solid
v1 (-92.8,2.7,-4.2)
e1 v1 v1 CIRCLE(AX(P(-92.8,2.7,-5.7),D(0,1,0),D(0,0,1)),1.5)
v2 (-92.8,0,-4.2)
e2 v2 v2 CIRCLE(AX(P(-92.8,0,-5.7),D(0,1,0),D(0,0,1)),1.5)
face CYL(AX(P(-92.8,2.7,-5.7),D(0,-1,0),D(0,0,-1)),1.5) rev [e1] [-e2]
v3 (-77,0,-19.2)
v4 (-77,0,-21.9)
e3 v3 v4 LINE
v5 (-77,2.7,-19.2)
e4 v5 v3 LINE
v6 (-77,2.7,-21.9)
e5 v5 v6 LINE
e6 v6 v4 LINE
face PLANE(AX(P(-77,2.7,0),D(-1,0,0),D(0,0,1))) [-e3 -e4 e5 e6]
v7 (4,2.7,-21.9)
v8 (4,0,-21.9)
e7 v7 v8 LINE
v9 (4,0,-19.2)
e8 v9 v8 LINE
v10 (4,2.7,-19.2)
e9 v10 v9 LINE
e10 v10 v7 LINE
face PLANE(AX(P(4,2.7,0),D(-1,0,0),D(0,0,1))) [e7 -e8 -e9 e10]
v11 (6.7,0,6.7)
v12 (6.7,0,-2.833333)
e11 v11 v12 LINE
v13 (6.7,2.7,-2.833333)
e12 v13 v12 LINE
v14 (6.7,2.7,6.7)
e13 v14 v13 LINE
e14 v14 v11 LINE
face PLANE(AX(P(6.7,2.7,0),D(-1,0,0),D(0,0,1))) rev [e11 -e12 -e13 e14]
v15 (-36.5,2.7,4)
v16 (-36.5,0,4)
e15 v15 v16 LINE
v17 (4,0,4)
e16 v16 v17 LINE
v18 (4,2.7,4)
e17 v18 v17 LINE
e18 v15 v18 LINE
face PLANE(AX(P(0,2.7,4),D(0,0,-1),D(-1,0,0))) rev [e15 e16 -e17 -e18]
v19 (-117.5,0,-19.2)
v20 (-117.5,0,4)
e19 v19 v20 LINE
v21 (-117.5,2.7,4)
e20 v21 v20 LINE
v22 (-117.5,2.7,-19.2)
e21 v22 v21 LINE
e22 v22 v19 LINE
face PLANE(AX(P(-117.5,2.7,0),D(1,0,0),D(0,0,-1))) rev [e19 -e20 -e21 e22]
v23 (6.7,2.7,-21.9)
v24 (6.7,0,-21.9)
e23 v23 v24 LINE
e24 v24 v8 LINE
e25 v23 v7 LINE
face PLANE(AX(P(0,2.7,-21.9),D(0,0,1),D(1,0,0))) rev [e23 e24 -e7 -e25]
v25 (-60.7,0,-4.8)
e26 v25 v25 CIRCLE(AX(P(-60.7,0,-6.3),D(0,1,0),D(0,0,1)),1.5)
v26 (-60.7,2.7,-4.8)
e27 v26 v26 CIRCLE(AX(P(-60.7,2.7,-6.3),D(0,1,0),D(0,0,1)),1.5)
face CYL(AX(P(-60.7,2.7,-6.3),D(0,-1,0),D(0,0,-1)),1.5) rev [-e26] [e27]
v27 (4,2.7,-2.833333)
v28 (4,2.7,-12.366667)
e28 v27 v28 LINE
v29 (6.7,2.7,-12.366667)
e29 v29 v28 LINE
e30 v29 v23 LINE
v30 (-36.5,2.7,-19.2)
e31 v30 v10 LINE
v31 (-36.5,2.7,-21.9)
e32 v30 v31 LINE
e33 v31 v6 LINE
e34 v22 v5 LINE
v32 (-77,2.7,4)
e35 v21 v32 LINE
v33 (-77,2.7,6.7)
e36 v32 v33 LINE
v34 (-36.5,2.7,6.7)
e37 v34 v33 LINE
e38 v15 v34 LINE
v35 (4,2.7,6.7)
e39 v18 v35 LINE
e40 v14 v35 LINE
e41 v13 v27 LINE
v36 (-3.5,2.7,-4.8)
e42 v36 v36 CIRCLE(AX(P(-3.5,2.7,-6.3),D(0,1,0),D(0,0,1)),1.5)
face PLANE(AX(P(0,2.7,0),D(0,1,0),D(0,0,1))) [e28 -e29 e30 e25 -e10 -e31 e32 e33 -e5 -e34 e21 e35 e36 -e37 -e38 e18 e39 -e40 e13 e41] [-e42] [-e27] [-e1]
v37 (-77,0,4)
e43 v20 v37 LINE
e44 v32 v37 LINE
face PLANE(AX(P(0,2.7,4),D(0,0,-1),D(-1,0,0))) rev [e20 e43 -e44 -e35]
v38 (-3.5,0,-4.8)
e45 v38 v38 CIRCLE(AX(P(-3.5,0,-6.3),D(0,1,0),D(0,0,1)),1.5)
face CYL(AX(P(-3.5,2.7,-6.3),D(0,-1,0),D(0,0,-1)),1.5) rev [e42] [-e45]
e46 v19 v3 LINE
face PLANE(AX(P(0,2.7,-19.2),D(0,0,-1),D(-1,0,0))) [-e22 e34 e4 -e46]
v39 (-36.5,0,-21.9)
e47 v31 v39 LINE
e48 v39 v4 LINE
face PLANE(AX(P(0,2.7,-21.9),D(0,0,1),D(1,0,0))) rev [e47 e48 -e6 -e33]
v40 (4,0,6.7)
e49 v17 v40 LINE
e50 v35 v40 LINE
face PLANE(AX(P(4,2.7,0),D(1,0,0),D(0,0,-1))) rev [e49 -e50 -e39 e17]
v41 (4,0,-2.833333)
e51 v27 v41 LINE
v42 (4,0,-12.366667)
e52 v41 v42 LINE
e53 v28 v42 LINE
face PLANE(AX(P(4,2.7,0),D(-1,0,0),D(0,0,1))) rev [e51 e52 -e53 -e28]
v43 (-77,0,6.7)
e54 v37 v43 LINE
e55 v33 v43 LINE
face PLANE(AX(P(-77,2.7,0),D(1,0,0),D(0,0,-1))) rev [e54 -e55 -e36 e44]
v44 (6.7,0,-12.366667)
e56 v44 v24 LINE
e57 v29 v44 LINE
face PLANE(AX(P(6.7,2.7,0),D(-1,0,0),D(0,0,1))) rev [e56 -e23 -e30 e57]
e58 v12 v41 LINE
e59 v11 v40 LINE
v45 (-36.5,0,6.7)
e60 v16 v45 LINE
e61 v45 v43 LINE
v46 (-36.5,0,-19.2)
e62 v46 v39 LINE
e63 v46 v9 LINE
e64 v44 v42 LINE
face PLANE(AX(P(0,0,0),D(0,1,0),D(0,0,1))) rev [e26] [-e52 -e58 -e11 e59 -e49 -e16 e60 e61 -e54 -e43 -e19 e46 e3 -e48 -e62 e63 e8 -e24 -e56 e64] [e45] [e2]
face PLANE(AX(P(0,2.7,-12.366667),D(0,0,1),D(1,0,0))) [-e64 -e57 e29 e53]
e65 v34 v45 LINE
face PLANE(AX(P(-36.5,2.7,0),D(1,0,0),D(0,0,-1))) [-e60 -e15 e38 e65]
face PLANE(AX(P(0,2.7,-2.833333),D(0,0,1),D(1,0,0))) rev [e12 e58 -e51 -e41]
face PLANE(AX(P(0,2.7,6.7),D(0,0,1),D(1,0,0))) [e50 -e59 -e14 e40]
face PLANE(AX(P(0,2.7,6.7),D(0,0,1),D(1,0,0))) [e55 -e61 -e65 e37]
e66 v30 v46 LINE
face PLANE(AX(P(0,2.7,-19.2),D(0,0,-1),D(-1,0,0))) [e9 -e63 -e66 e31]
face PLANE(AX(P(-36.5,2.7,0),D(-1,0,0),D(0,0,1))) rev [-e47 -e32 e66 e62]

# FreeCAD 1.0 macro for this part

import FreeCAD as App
import Part
import Sketcher

V = App.Vector

doc = App.newDocument("Part")
body = doc.addObject("PartDesign::Body", "Body")

# Sketch on XZ plane
sketch1 = body.newObject("Sketcher::SketchObject", "Sketch")
sketch1.AttachmentSupport = (doc.getObject("XZ_Plane"), [""])
sketch1.MapMode = "FlatFace"
sketch1.addGeometry([
    Part.LineSegment(V(4, -2.833333, 0), V(4, -12.366667, 0)),  # 0
    Part.LineSegment(V(4, -12.366667, 0), V(6.7, -12.366667, 0)),  # 1
    Part.LineSegment(V(6.7, -12.366667, 0), V(6.7, -21.9, 0)),  # 2
    Part.LineSegment(V(6.7, -21.9, 0), V(4, -21.9, 0)),  # 3
    Part.LineSegment(V(4, -21.9, 0), V(4, -19.2, 0)),  # 4
    Part.LineSegment(V(4, -19.2, 0), V(-36.5, -19.2, 0)),  # 5
    Part.LineSegment(V(-36.5, -19.2, 0), V(-36.5, -21.9, 0)),  # 6
    Part.LineSegment(V(-36.5, -21.9, 0), V(-77, -21.9, 0)),  # 7
    Part.LineSegment(V(-77, -21.9, 0), V(-77, -19.2, 0)),  # 8
    Part.LineSegment(V(-77, -19.2, 0), V(-117.5, -19.2, 0)),  # 9
    Part.LineSegment(V(-117.5, -19.2, 0), V(-117.5, 4, 0)),  # 10
    Part.LineSegment(V(-117.5, 4, 0), V(-77, 4, 0)),  # 11
    Part.LineSegment(V(-77, 4, 0), V(-77, 6.7, 0)),  # 12
    Part.LineSegment(V(-77, 6.7, 0), V(-36.5, 6.7, 0)),  # 13
    Part.LineSegment(V(-36.5, 6.7, 0), V(-36.5, 4, 0)),  # 14
    Part.LineSegment(V(-36.5, 4, 0), V(4, 4, 0)),  # 15
    Part.LineSegment(V(4, 4, 0), V(4, 6.7, 0)),  # 16
    Part.LineSegment(V(4, 6.7, 0), V(6.7, 6.7, 0)),  # 17
    Part.LineSegment(V(6.7, 6.7, 0), V(6.7, -2.833333, 0)),  # 18
    Part.LineSegment(V(6.7, -2.833333, 0), V(4, -2.833333, 0)),  # 19
    Part.Circle(V(-92.8, -5.7, 0), V(0, 0, 1), 1.5),  # 20
    Part.Circle(V(-60.7, -6.3, 0), V(0, 0, 1), 1.5),  # 21
    Part.Circle(V(-3.5, -6.3, 0), V(0, 0, 1), 1.5),  # 22
], False)
sketch1.addConstraint([
    Sketcher.Constraint("Coincident", 0, 2, 1, 1),
    Sketcher.Constraint("Coincident", 1, 2, 2, 1),
    Sketcher.Constraint("Coincident", 2, 2, 3, 1),
    Sketcher.Constraint("Coincident", 3, 2, 4, 1),
    Sketcher.Constraint("Coincident", 4, 2, 5, 1),
    Sketcher.Constraint("Coincident", 5, 2, 6, 1),
    Sketcher.Constraint("Coincident", 6, 2, 7, 1),
    Sketcher.Constraint("Coincident", 7, 2, 8, 1),
    Sketcher.Constraint("Coincident", 8, 2, 9, 1),
    Sketcher.Constraint("Coincident", 9, 2, 10, 1),
    Sketcher.Constraint("Coincident", 10, 2, 11, 1),
    Sketcher.Constraint("Coincident", 11, 2, 12, 1),
    Sketcher.Constraint("Coincident", 12, 2, 13, 1),
    Sketcher.Constraint("Coincident", 13, 2, 14, 1),
    Sketcher.Constraint("Coincident", 14, 2, 15, 1),
    Sketcher.Constraint("Coincident", 15, 2, 16, 1),
    Sketcher.Constraint("Coincident", 16, 2, 17, 1),
    Sketcher.Constraint("Coincident", 17, 2, 18, 1),
    Sketcher.Constraint("Coincident", 18, 2, 19, 1),
    Sketcher.Constraint("Coincident", 19, 2, 0, 1),
    Sketcher.Constraint("Vertical", 0),
    Sketcher.Constraint("Horizontal", 1),
    Sketcher.Constraint("Vertical", 2),
    Sketcher.Constraint("Horizontal", 3),
    Sketcher.Constraint("Vertical", 4),
    Sketcher.Constraint("Horizontal", 5),
    Sketcher.Constraint("Vertical", 6),
    Sketcher.Constraint("Horizontal", 7),
    Sketcher.Constraint("Vertical", 8),
    Sketcher.Constraint("Horizontal", 9),
    Sketcher.Constraint("Vertical", 10),
    Sketcher.Constraint("Horizontal", 11),
    Sketcher.Constraint("Vertical", 12),
    Sketcher.Constraint("Horizontal", 13),
    Sketcher.Constraint("Vertical", 14),
    Sketcher.Constraint("Horizontal", 15),
    Sketcher.Constraint("Vertical", 16),
    Sketcher.Constraint("Horizontal", 17),
    Sketcher.Constraint("Vertical", 18),
    Sketcher.Constraint("Horizontal", 19),
    Sketcher.Constraint("Equal", 20, 21),
    Sketcher.Constraint("Equal", 21, 22),
    Sketcher.Constraint("Horizontal", 21, 3, 22, 3),
    Sketcher.Constraint("Horizontal", 3, 2, 6, 2),
    Sketcher.Constraint("Horizontal", 5, 2, 8, 2),
    Sketcher.Constraint("Horizontal", 11, 2, 14, 2),
    Sketcher.Constraint("Horizontal", 13, 2, 16, 2),
    Sketcher.Constraint("Vertical", 0, 2, 3, 2),
    Sketcher.Constraint("Vertical", 8, 2, 11, 2),
    Sketcher.Constraint("Vertical", 6, 2, 13, 2),
    Sketcher.Constraint("Vertical", 4, 2, 15, 2),
    Sketcher.Constraint("Vertical", 2, 2, 17, 2),
    Sketcher.Constraint("Equal", 5, 7),
    Sketcher.Constraint("Equal", 7, 9),
    Sketcher.Constraint("Equal", 0, 2),
    Sketcher.Constraint("Equal", 19, 4),
    Sketcher.Constraint("Equal", 8, 12),
    Sketcher.Constraint("Equal", 2, 18),
    Sketcher.Constraint("Diameter", 20, 3.0),
    Sketcher.Constraint("DistanceX", 1, 1, 1, 2, 2.7),
    Sketcher.Constraint("DistanceX", 5, 2, 5, 1, 40.5),
    Sketcher.Constraint("DistanceY", 10, 1, 10, 2, 23.2),
    Sketcher.Constraint("DistanceX", -1, 1, 0, 2, 4.0),
    Sketcher.Constraint("DistanceY", -1, 1, 10, 2, 4.0),
    Sketcher.Constraint("DistanceX", 5, 2, 22, 3, 33.0),
    Sketcher.Constraint("DistanceY", 21, 3, 12, 2, 13.0),
    Sketcher.Constraint("DistanceX", 20, 3, -1, 1, 92.8),
    Sketcher.Constraint("DistanceY", 20, 3, -1, 1, 5.7),
    Sketcher.Constraint("DistanceX", 21, 3, -1, 1, 60.7),
])
pad1 = body.newObject("PartDesign::Pad", "Pad")
pad1.Profile = sketch1
pad1.Length = 2.7
pad1.Reversed = True

doc.recompute()
